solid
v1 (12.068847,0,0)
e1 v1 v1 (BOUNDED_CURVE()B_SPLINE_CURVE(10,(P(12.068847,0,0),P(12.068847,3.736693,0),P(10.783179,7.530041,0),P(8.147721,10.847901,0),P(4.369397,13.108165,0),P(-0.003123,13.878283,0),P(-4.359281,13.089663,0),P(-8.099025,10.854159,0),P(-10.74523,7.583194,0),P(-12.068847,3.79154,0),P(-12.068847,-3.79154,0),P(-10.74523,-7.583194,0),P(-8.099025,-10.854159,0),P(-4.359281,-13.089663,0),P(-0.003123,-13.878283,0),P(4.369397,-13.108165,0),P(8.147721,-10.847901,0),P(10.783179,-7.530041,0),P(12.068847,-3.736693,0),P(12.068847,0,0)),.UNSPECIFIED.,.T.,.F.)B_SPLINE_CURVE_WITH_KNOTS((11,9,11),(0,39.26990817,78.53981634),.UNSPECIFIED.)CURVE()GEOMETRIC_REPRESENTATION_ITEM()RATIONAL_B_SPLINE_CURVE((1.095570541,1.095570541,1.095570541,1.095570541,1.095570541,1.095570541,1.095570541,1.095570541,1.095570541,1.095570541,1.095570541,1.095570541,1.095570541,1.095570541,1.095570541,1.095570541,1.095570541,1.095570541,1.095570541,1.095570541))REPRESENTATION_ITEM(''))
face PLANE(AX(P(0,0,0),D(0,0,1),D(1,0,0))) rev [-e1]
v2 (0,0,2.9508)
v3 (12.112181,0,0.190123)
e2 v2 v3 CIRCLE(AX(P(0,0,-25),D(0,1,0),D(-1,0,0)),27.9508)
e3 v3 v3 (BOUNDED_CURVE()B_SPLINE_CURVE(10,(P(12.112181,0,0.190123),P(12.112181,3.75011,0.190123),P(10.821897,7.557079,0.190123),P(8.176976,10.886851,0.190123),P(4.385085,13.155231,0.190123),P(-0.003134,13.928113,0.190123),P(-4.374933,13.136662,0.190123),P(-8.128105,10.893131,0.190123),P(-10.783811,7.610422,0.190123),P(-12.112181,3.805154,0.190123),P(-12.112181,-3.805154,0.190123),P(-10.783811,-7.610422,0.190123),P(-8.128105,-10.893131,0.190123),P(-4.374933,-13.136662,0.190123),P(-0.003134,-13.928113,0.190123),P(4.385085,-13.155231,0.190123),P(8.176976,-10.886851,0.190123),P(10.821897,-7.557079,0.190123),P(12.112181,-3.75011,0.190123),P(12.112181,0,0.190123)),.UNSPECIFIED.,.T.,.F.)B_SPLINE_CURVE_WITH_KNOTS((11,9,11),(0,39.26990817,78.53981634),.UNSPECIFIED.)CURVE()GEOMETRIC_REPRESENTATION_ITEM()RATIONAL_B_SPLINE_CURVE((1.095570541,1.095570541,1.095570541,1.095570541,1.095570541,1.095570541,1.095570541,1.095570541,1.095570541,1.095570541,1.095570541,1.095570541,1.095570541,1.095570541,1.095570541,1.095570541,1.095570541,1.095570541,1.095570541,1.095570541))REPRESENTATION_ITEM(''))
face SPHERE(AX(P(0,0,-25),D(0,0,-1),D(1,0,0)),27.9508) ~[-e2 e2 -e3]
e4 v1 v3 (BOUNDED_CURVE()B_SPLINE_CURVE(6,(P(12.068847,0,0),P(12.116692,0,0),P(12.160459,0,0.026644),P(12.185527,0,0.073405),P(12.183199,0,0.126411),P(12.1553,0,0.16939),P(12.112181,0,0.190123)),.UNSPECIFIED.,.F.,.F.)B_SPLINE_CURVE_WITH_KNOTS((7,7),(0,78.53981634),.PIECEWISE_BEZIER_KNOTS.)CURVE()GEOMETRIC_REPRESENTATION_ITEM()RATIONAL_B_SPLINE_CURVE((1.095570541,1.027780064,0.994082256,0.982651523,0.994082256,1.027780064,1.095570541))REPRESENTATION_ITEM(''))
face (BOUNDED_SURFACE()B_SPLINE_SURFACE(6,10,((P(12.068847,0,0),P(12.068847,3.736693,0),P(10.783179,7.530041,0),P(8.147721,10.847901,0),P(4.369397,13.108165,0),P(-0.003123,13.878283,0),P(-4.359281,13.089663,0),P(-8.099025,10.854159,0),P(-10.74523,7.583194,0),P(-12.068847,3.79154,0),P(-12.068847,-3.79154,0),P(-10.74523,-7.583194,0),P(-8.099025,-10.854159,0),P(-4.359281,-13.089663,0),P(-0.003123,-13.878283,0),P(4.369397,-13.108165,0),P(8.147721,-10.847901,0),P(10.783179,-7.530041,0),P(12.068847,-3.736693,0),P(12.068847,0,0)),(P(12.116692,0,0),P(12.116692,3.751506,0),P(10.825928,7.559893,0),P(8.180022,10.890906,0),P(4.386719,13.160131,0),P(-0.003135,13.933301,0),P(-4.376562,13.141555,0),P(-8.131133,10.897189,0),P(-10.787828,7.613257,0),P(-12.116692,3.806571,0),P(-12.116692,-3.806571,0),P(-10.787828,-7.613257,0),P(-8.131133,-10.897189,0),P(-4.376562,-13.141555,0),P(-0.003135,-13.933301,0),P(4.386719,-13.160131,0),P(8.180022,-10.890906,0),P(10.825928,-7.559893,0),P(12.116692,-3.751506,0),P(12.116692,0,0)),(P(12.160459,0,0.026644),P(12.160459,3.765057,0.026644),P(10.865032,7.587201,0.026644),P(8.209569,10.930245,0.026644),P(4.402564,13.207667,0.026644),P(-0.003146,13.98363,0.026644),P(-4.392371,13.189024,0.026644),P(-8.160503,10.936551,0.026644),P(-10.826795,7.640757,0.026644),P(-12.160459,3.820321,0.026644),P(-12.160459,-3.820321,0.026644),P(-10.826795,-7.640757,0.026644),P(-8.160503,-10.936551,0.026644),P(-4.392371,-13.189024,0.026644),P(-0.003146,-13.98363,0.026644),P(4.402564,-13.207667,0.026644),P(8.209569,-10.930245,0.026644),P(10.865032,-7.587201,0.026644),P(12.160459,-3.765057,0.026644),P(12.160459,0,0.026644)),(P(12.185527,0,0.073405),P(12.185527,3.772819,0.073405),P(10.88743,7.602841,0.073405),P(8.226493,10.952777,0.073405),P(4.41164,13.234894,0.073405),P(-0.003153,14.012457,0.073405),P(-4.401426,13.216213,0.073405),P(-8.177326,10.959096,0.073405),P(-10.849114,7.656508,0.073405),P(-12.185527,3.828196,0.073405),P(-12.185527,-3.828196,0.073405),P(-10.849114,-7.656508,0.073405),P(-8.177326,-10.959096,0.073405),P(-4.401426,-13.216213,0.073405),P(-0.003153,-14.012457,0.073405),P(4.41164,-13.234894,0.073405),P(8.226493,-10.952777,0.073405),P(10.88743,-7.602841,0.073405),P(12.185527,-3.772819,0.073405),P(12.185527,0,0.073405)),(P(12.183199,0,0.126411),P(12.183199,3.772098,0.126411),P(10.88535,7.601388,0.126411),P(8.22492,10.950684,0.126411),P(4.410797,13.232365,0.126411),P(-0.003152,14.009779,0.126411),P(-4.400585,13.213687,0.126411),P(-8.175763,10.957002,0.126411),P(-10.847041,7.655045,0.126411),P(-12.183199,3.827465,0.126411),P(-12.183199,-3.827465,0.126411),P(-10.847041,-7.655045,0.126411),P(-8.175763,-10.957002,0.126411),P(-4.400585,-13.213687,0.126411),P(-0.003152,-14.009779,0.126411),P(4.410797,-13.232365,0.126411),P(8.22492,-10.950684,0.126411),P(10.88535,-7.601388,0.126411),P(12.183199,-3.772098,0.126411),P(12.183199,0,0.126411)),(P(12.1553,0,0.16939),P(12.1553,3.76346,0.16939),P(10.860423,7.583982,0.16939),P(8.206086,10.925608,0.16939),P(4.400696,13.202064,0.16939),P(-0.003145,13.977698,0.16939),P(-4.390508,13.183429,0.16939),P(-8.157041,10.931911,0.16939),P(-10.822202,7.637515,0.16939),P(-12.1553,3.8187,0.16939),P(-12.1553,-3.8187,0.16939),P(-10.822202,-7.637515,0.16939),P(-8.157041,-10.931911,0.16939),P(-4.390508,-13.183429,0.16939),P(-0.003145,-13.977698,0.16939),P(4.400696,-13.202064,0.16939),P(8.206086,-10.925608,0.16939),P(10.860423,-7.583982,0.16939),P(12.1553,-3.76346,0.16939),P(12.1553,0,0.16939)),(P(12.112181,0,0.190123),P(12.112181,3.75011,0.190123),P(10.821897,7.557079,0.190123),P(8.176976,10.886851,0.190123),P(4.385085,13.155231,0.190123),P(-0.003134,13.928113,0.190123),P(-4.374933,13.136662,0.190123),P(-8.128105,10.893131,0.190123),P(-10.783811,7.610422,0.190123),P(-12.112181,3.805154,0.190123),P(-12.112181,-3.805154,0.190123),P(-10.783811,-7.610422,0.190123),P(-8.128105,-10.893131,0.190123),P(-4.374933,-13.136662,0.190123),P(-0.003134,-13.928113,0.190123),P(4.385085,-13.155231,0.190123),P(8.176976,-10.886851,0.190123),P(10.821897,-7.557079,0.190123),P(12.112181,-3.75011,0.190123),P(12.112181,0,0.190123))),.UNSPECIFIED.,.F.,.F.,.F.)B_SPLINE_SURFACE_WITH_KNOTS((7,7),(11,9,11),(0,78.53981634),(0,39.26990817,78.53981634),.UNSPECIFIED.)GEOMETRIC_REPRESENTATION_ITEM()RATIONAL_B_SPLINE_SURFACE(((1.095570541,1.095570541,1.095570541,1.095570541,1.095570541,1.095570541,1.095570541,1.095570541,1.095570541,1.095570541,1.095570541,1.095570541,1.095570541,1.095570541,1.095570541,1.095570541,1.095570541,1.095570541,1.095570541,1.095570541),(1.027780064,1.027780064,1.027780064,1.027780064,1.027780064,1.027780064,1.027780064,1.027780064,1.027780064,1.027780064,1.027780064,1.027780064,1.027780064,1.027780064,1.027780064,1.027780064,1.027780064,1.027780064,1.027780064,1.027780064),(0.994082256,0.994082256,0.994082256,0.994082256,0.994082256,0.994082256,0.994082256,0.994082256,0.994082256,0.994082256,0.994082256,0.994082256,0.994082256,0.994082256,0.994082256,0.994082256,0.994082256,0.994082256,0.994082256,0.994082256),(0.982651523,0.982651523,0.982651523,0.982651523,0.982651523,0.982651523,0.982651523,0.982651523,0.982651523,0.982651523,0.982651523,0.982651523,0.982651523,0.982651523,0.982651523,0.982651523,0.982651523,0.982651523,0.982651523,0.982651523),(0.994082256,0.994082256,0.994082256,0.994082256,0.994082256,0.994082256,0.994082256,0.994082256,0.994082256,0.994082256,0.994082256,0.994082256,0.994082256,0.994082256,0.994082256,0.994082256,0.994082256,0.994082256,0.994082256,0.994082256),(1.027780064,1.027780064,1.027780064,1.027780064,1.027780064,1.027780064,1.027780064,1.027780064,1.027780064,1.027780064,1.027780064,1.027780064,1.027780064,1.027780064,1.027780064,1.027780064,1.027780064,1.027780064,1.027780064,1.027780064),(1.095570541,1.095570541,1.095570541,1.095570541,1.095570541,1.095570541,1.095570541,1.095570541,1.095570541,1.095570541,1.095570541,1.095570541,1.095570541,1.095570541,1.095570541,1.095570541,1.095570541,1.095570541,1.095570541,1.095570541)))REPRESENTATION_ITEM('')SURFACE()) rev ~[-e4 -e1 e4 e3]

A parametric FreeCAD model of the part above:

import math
import FreeCAD as App
import Part
import Sketcher
Q = App.Units.Quantity


def edges_at(feature, points):
    """Names of the edges that pass closest to the given points."""
    edges = feature.Shape.Edges
    near = lambda p: min(range(len(edges)), key=lambda i: edges[i].distToShape(Part.Vertex(*p))[0])
    return sorted({f"Edge{near(p) + 1}" for p in points})

doc = App.newDocument("Part")
body = doc.addObject("PartDesign::Body", "Body")

sketch1 = body.newObject("Sketcher::SketchObject", "Sketch")
sketch1.AttachmentSupport = (doc.getObject("XZ_Plane"), [""])
sketch1.MapMode = "FlatFace"
sketch1.addGeometry([
    Part.LineSegment(App.Vector(12.5, 0, 0), App.Vector(0, 0, 0)),
    Part.LineSegment(App.Vector(0, 0, 0), App.Vector(0, 3, 0)),
    Part.ArcOfCircle(Part.Circle(App.Vector(0, -25, 0), App.Vector(0, 0, 1), 28), math.radians(63), math.radians(90)),
], False)
sketch1.addConstraint([
    Sketcher.Constraint("Coincident", 0, 2, 1, 1),
    Sketcher.Constraint("Coincident", 1, 2, 2, 2),
    Sketcher.Constraint("Coincident", 2, 1, 0, 1),
    Sketcher.Constraint("Horizontal", 0),
    Sketcher.Constraint("Vertical", 1),
    Sketcher.Constraint("Coincident", 0, 2, -1, 1),
    Sketcher.Constraint("PointOnObject", 2, 3, -2),
    Sketcher.Constraint("DistanceX", 0, 2, 0, 1, Q("12.5 mm")),
    Sketcher.Constraint("DistanceY", 2, 3, -1, 1, Q("25 mm")),
])
revolution = body.newObject("PartDesign::Revolution", "Revolution")
revolution.Profile = sketch1
revolution.ReferenceAxis = (sketch1, ["V_Axis"])
revolution.Angle = 360
doc.recompute()

fillet = body.newObject("PartDesign::Fillet", "Fillet")
fillet.Base = (revolution, edges_at(revolution, [(-12.5, 0, 0)]))
fillet.Radius = 0.1

doc.recompute()
